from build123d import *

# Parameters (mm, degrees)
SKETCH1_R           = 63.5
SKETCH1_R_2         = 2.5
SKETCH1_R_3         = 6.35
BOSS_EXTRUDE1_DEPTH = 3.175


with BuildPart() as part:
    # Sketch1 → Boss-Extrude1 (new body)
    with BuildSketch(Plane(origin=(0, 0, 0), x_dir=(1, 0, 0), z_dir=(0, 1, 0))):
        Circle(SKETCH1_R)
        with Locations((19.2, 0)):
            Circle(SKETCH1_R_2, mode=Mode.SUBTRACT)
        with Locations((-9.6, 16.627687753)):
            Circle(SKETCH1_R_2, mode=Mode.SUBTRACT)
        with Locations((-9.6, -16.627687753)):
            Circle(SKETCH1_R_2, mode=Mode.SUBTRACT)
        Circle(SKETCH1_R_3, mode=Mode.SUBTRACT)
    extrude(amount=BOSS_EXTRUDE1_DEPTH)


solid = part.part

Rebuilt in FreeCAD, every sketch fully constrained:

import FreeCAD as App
import Part
import Sketcher
Q = App.Units.Quantity

doc = App.newDocument("Part")
params = doc.addObject("Spreadsheet::Sheet", "Params")
for row, (alias, value) in enumerate([
    ("sketch1_diameter", "5 in"),
    ("sketch1_diameter2", "0.5 in"),
    ("pad1_length", "0.125 in"),
], start=1):
    params.set(f"A{row}", alias)
    params.set(f"B{row}", "=" + value)
    params.setAlias(f"B{row}", alias)

body = doc.addObject("PartDesign::Body", "Body")

# Sketch on XZ plane
sketch1 = body.newObject("Sketcher::SketchObject", "Sketch")
sketch1.AttachmentSupport = (doc.getObject("XZ_Plane"), [""])
sketch1.MapMode = "FlatFace"
sketch1.addGeometry([
    Part.Circle(App.Vector(0, 0, 0), App.Vector(0, 0, 1), 63.5),  # 0
    Part.Circle(App.Vector(-9.6, 16.627688, 0), App.Vector(0, 0, 1), 2.5),  # 1
    Part.Circle(App.Vector(0, 0, 0), App.Vector(0, 0, 1), 6.35),  # 2
    Part.Circle(App.Vector(-9.6, -16.627688, 0), App.Vector(0, 0, 1), 2.5),  # 3
    Part.Circle(App.Vector(19.2, 0, 0), App.Vector(0, 0, 1), 2.5),  # 4
], False)
sketch1.addConstraint([
    Sketcher.Constraint("Coincident", 0, 3, -1, 1),
    Sketcher.Constraint("Coincident", 2, 3, -1, 1),
    Sketcher.Constraint("Equal", 1, 3),
    Sketcher.Constraint("Equal", 3, 4),
    Sketcher.Constraint("Symmetric", 1, 3, 3, 3, -1),
    Sketcher.Constraint("PointOnObject", 4, 3, -1),
    Sketcher.Constraint("Diameter", 0, Q("5 in")),
    Sketcher.Constraint("Diameter", 2, Q("0.5 in")),
    Sketcher.Constraint("Diameter", 1, Q("5 mm")),
    Sketcher.Constraint("DistanceX", 1, 3, -1, 1, Q("9.6 mm")),
    Sketcher.Constraint("DistanceX", -1, 1, 4, 3, Q("19.2 mm")),
    Sketcher.Constraint("DistanceY", -1, 1, 1, 3, Q("16.627688 mm")),
])
sketch1.setExpression("Constraints[6]", "Params.sketch1_diameter")
sketch1.setExpression("Constraints[7]", "Params.sketch1_diameter2")
pad1 = body.newObject("PartDesign::Pad", "Pad")
pad1.Profile = sketch1
pad1.setExpression("Length", "Params.pad1_length")
pad1.Reversed = True

doc.recompute()
